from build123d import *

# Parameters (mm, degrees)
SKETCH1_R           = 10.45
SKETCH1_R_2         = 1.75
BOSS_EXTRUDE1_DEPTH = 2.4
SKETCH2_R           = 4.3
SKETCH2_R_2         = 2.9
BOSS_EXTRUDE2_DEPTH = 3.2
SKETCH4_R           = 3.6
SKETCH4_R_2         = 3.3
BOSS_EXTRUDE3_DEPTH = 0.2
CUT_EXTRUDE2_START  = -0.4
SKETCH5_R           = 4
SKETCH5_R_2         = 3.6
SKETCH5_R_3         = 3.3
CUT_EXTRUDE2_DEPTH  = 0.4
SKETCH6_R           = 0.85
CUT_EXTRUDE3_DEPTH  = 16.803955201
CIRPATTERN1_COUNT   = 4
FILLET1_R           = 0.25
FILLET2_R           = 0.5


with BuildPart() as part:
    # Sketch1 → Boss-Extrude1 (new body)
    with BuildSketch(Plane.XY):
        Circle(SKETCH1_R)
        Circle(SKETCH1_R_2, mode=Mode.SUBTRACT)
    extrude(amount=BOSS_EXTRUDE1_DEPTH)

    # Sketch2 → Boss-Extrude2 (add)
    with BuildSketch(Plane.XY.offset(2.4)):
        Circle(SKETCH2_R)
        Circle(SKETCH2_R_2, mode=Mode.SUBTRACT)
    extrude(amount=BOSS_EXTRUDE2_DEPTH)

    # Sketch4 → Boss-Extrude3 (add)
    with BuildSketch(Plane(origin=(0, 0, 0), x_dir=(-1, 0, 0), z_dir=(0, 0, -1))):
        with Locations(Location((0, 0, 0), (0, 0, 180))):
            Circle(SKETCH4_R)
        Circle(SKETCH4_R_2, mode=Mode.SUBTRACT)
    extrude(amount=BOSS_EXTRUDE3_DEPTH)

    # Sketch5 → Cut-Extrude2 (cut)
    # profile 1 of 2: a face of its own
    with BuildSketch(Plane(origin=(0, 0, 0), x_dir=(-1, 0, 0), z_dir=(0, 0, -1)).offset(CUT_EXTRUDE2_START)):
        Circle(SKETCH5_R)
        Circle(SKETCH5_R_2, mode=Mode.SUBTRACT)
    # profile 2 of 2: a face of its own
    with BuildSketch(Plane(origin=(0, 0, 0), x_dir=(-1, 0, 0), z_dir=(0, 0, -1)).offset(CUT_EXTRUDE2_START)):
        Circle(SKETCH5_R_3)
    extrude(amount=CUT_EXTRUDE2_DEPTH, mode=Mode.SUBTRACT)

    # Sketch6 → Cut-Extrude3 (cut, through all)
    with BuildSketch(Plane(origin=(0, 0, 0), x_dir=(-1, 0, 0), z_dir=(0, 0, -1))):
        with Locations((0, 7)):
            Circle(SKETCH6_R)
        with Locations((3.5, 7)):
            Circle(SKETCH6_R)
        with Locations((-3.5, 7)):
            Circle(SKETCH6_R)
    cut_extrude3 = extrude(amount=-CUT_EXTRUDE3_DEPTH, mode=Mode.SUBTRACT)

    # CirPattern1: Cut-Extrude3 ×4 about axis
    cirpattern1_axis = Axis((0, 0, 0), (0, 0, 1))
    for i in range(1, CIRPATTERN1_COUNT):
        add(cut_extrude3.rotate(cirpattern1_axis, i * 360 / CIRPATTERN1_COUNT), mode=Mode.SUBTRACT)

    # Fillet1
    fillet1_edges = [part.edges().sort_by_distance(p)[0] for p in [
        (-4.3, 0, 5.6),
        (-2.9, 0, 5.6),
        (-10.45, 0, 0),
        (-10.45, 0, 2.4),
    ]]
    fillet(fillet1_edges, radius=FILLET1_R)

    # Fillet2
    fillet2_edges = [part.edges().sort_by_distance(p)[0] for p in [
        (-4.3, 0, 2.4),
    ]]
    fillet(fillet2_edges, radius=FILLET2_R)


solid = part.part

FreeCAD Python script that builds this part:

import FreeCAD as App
import Part
import Sketcher

V = App.Vector


def edges_at(feature, points):
    """Names of the edges that pass closest to the given points."""
    edges = feature.Shape.Edges
    near = lambda p: min(range(len(edges)), key=lambda i: edges[i].distToShape(Part.Vertex(*p))[0])
    return sorted({f"Edge{near(p) + 1}" for p in points})

doc = App.newDocument("Part")
body = doc.addObject("PartDesign::Body", "Body")

# Sketch on XY plane
sketch1 = body.newObject("Sketcher::SketchObject", "Sketch")
sketch1.AttachmentSupport = (doc.getObject("XY_Plane"), [""])
sketch1.MapMode = "FlatFace"
sketch1.addGeometry([
    Part.Circle(V(0, 0, 0), V(0, 0, 1), 10.4),
    Part.Circle(V(0, 0, 0), V(0, 0, 1), 1.8),
], False)
sketch1.addConstraint([
    Sketcher.Constraint("Coincident", 0, 3, -1, 1),
    Sketcher.Constraint("Coincident", 1, 3, -1, 1),
    Sketcher.Constraint("Diameter", 0, 20.9),
    Sketcher.Constraint("Diameter", 1, 3.5),
])
pad1 = body.newObject("PartDesign::Pad", "Pad")
pad1.Profile = sketch1
pad1.Length = 2.4

# Sketch on XY plane
sketch2 = body.newObject("Sketcher::SketchObject", "Sketch001")
sketch2.AttachmentSupport = (doc.getObject("XY_Plane"), [""])
sketch2.MapMode = "FlatFace"
sketch2.AttachmentOffset = App.Placement(V(0, 0, 2.4), App.Rotation())
sketch2.addGeometry([
    Part.Circle(V(0, 0, 0), V(0, 0, 1), 4.3),
    Part.Circle(V(0, 0, 0), V(0, 0, 1), 2.9),
], False)
sketch2.addConstraint([
    Sketcher.Constraint("Coincident", 0, 3, -1, 1),
    Sketcher.Constraint("Coincident", 1, 3, -1, 1),
    Sketcher.Constraint("Diameter", 0, 8.6),
    Sketcher.Constraint("Diameter", 1, 5.8),
])
pad2 = body.newObject("PartDesign::Pad", "Pad001")
pad2.Profile = sketch2
pad2.Length = 3.2

# Sketch on XY plane
sketch3 = body.newObject("Sketcher::SketchObject", "Sketch002")
sketch3.AttachmentSupport = (doc.getObject("XY_Plane"), [""])
sketch3.MapMode = "FlatFace"
sketch3.addGeometry([
    Part.Circle(V(0, 0, 0), V(0, 0, 1), 3.6),
    Part.Circle(V(0, 0, 0), V(0, 0, 1), 3.3),
], False)
sketch3.addConstraint([
    Sketcher.Constraint("Coincident", 0, 3, -1, 1),
    Sketcher.Constraint("Coincident", 1, 3, -1, 1),
    Sketcher.Constraint("Diameter", 0, 7.2),
    Sketcher.Constraint("Diameter", 1, 6.6),
])
pad3 = body.newObject("PartDesign::Pad", "Pad002")
pad3.Profile = sketch3
pad3.Length = 0.2
pad3.Reversed = True

# Sketch on XY plane
sketch4 = body.newObject("Sketcher::SketchObject", "Sketch003")
sketch4.AttachmentSupport = (doc.getObject("XY_Plane"), [""])
sketch4.MapMode = "FlatFace"
sketch4.AttachmentOffset = App.Placement(V(0, 0, 0.4), App.Rotation())
sketch4.addGeometry([
    Part.Circle(V(0, 0, 0), V(0, 0, 1), 4),
    Part.Circle(V(0, 0, 0), V(0, 0, 1), 3.6),
    Part.Circle(V(0, 0, 0), V(0, 0, 1), 3.3),
], False)
sketch4.addConstraint([
    Sketcher.Constraint("Coincident", 0, 3, -1, 1),
    Sketcher.Constraint("Coincident", 1, 3, -1, 1),
    Sketcher.Constraint("Coincident", 2, 3, -1, 1),
    Sketcher.Constraint("Diameter", 0, 8.0),
    Sketcher.Constraint("Diameter", 1, 7.2),
    Sketcher.Constraint("Diameter", 2, 6.6),
])
pocket1 = body.newObject("PartDesign::Pocket", "Pocket")
pocket1.Profile = sketch4
pocket1.Length = 0.4

# Sketch on XY plane
sketch5 = body.newObject("Sketcher::SketchObject", "Sketch004")
sketch5.AttachmentSupport = (doc.getObject("XY_Plane"), [""])
sketch5.MapMode = "FlatFace"
sketch5.addGeometry([
    Part.Circle(V(0, 7, 0), V(0, 0, 1), 0.8),
    Part.Circle(V(-3.5, 7, 0), V(0, 0, 1), 0.8),
    Part.Circle(V(3.5, 7, 0), V(0, 0, 1), 0.8),
], False)
sketch5.addConstraint([
    Sketcher.Constraint("Equal", 0, 1),
    Sketcher.Constraint("Equal", 1, 2),
    Sketcher.Constraint("Symmetric", 1, 3, 2, 3, -2),
    Sketcher.Constraint("PointOnObject", 0, 3, -2),
    Sketcher.Constraint("Horizontal", 0, 3, 1, 3),
    Sketcher.Constraint("Diameter", 0, 1.7),
    Sketcher.Constraint("DistanceY", -1, 1, 0, 3, 7.0),
    Sketcher.Constraint("DistanceX", 1, 3, 2, 3, 7.0),
])
pocket2 = body.newObject("PartDesign::Pocket", "Pocket001")
pocket2.Profile = sketch5
pocket2.Type = "ThroughAll"
pocket2.Reversed = True
doc.recompute()

polarpattern = body.newObject("PartDesign::PolarPattern", "PolarPattern")
polarpattern.Originals = [pocket2]
polarpattern.Axis = (doc.getObject("Z_Axis"), [""])
polarpattern.Angle = 360
polarpattern.Occurrences = 4
body.Tip = polarpattern
doc.recompute()

fillet = body.newObject("PartDesign::Fillet", "Fillet")
fillet.Base = (polarpattern, edges_at(polarpattern, [
    (-4.3, 0, 5.6),
    (-2.9, 0, 5.6),
    (-10.45, 0, 0),
    (-10.45, 0, 2.4),
]))
fillet.Radius = 0.25
doc.recompute()

fillet2 = body.newObject("PartDesign::Fillet", "Fillet001")
fillet2.Base = (fillet, edges_at(fillet, [(-4.3, 0, 2.4)]))
fillet2.Radius = 0.5

doc.recompute()
